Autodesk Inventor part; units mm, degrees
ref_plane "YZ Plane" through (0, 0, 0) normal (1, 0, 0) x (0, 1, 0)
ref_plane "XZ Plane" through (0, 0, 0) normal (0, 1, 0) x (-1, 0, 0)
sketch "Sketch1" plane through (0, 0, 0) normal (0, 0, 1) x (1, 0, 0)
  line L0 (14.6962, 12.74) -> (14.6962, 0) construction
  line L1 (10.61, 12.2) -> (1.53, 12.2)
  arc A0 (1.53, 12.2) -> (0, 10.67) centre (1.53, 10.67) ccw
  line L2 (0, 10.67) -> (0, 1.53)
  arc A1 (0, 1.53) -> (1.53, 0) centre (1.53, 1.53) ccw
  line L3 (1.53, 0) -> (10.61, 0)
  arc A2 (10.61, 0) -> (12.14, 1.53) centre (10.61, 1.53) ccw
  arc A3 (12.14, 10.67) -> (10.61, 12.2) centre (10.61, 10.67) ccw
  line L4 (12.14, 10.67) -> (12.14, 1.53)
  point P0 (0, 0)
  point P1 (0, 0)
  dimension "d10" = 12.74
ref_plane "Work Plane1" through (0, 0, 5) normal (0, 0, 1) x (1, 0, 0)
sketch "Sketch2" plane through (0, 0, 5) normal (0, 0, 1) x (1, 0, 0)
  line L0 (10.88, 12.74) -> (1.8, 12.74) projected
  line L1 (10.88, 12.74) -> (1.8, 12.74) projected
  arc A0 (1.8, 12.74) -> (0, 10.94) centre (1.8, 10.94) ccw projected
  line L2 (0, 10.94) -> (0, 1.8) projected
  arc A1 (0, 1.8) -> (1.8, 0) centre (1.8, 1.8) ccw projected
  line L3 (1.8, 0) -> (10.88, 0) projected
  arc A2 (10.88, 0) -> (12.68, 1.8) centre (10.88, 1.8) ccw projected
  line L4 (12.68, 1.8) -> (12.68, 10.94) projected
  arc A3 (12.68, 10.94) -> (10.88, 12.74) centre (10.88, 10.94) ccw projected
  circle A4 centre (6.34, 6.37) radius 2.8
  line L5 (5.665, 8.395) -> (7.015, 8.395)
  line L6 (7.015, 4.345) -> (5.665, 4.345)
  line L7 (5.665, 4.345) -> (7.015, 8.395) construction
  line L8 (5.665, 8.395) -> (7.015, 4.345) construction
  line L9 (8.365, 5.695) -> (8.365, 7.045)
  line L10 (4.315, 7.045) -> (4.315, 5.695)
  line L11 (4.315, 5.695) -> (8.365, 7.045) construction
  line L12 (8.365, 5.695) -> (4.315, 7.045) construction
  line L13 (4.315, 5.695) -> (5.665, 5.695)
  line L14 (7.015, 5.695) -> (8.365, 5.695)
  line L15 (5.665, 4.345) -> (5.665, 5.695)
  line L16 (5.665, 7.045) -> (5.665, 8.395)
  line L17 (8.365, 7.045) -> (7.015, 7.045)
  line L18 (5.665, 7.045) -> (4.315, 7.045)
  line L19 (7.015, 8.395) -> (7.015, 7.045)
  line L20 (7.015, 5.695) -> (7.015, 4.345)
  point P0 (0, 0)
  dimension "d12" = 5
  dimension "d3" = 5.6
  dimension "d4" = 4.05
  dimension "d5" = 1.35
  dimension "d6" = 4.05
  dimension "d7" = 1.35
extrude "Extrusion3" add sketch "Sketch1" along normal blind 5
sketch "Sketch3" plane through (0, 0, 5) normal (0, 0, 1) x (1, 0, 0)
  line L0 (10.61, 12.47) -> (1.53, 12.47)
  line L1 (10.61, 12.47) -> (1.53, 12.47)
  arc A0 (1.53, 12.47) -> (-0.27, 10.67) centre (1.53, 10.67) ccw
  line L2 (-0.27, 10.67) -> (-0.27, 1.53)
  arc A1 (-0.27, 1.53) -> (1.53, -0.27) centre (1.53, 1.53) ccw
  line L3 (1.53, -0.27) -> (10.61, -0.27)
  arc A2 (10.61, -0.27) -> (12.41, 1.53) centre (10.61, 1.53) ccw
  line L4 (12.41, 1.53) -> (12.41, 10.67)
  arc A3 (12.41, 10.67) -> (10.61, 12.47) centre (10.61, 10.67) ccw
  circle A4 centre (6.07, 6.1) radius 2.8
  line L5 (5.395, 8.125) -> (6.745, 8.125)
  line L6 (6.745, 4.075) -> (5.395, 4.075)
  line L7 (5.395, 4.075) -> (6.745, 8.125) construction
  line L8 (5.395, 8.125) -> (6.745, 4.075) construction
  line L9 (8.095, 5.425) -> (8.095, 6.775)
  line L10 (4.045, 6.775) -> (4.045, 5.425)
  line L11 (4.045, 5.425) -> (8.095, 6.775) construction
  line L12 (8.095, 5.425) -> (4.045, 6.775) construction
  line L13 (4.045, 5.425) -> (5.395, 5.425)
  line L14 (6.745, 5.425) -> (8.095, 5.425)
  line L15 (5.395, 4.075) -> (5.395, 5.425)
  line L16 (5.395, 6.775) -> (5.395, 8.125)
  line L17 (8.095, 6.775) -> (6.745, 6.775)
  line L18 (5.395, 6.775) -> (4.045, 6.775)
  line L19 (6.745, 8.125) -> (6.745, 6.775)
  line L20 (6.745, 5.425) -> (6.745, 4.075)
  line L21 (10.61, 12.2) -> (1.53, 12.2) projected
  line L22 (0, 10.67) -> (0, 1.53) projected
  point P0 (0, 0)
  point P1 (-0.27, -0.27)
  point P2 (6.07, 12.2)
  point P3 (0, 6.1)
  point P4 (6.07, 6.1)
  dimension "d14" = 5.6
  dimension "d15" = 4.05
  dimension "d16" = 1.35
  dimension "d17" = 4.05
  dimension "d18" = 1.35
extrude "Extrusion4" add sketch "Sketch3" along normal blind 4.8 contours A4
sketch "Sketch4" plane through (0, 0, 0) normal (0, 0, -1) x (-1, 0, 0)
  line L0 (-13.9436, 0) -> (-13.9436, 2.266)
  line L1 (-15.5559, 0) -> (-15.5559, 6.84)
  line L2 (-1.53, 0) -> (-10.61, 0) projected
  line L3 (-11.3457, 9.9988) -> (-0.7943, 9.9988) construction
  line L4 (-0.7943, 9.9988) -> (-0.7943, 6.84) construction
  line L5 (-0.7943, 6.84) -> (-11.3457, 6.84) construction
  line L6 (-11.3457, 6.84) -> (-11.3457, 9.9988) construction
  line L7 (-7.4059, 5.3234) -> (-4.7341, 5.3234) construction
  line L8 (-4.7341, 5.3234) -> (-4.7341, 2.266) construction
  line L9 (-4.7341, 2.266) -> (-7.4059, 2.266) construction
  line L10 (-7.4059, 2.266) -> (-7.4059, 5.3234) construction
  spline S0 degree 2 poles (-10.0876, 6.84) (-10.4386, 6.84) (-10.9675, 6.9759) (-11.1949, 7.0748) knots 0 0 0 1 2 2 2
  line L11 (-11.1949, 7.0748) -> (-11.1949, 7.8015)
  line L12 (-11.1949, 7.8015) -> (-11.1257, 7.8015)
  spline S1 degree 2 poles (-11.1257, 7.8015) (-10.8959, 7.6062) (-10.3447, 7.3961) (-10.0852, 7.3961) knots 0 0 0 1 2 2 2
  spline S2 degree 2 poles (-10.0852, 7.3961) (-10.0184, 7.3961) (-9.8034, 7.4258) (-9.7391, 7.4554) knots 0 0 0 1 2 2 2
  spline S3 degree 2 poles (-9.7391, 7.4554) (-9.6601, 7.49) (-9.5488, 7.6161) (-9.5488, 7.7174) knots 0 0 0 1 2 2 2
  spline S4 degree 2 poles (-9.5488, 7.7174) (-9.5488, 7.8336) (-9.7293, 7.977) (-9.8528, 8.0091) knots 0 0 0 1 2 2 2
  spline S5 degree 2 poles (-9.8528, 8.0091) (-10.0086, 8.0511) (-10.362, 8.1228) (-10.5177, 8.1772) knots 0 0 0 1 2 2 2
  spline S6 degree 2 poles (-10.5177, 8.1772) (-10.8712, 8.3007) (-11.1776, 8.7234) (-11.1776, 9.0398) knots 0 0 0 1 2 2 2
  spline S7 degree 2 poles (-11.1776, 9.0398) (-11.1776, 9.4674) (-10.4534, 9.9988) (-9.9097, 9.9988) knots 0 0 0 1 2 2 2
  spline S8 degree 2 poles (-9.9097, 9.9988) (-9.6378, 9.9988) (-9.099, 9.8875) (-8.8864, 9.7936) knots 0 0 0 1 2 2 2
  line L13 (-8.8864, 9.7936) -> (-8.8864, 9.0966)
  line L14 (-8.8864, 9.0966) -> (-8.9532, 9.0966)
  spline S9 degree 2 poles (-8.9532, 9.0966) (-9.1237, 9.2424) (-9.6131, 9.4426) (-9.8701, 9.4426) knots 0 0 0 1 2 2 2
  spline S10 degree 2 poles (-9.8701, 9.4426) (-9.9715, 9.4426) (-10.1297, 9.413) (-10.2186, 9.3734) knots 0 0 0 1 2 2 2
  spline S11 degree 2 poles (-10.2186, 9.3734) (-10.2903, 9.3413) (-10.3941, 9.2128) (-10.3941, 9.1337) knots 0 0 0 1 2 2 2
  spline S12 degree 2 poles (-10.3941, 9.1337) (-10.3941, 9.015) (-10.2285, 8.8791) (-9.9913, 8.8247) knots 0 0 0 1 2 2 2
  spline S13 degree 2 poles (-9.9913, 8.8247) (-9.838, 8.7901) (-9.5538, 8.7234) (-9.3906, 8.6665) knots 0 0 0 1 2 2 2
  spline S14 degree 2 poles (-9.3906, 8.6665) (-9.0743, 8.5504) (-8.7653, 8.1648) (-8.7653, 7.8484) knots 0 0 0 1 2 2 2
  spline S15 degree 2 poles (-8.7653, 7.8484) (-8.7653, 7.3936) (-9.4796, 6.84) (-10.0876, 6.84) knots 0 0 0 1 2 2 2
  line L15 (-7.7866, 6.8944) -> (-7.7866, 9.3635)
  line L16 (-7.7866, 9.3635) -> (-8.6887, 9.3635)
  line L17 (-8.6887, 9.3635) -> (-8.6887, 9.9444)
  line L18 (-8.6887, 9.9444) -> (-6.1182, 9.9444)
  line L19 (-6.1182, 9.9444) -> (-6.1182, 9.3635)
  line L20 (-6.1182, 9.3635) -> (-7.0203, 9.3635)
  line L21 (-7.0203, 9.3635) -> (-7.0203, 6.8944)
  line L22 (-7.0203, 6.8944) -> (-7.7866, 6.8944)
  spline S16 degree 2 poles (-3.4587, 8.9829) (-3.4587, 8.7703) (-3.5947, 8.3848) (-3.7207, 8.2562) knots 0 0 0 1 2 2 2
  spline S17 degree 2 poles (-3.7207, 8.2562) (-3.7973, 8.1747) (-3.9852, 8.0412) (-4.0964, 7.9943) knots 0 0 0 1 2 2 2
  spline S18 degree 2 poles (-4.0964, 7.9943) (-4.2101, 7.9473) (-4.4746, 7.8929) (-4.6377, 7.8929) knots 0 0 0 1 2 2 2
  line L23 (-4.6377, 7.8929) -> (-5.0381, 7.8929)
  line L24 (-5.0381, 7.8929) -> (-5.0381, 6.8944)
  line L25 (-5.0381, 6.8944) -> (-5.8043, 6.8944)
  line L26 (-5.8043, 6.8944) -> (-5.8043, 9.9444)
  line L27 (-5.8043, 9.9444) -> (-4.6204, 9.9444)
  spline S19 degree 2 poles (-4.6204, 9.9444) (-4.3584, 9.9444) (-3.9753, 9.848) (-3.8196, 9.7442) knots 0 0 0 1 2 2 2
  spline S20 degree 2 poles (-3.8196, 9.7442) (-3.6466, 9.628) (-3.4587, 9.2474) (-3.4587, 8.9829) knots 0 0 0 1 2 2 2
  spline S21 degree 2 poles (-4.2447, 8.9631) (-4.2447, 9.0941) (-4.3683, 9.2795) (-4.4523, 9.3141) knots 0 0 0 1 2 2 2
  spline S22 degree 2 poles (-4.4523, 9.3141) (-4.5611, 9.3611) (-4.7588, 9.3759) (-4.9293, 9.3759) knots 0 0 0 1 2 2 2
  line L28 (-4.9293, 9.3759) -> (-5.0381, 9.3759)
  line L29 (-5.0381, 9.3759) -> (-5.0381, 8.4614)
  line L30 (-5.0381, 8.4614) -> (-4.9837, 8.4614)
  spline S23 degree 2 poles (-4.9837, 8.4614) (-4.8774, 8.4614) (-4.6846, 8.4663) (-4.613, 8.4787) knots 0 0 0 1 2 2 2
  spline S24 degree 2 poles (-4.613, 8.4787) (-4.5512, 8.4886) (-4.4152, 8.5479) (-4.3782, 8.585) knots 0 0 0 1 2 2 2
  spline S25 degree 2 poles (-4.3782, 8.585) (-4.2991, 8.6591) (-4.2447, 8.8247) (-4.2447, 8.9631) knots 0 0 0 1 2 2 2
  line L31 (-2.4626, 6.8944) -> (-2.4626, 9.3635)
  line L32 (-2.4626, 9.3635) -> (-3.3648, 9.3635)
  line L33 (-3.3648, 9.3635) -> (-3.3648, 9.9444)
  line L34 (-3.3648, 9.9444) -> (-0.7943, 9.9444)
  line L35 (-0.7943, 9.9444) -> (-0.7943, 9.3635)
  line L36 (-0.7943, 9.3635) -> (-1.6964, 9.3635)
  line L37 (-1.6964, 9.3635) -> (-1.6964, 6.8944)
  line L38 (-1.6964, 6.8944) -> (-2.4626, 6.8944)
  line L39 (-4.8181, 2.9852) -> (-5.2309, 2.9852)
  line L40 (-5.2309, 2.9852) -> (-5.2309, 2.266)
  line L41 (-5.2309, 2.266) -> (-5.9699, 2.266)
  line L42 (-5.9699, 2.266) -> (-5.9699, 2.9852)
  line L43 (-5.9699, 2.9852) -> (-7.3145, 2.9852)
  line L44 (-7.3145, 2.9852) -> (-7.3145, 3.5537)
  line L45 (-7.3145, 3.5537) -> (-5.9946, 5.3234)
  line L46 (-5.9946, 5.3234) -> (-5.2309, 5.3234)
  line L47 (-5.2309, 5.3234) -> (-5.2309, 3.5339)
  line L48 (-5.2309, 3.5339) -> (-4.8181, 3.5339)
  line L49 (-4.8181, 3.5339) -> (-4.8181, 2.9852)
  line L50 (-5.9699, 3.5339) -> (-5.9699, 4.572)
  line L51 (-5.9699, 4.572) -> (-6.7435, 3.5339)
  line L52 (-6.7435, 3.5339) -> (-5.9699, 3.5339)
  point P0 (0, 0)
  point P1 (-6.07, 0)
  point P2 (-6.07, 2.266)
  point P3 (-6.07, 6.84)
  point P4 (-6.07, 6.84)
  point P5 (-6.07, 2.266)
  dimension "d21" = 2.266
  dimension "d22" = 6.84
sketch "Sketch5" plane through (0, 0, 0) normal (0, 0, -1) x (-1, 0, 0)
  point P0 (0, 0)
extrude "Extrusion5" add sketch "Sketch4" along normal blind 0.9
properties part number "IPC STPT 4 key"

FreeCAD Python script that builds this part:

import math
import FreeCAD as App
import Part
import Sketcher
from FreeCAD import Vector


def add_polygon(sketch, points):
    """Adds a closed chain of lines whose ends are joined by coincident constraints."""
    first, n = sketch.GeometryCount, len(points)
    for a, b in zip(points, points[1:] + points[:1]):
        sketch.addGeometry(Part.LineSegment(App.Vector(*a, 0), App.Vector(*b, 0)), False)
    for i in range(n):
        sketch.addConstraint(Sketcher.Constraint("Coincident", first + i, 2, first + (i + 1) % n, 1))

doc = App.newDocument("Part")
params = doc.addObject("Spreadsheet::Sheet", "Params")
for row, (alias, value) in enumerate([
    ("sketch1_radius", "1.53 mm"),
    ("sketch1_width", "9.08 mm"),
    ("sketch1_height", "9.14 mm"),
    ("pad1_length", "5 mm"),
    ("sketch2_diameter", "5.6 mm"),
    ("sketch2_width", "1.35 mm"),
    ("pad2_length", "4.8 mm"),
    ("sketch3_height", "3.05 mm"),
    ("pad3_length", "0.9 mm"),
], start=1):
    params.set(f"A{row}", alias)
    params.set(f"B{row}", "=" + value)
    params.setAlias(f"B{row}", alias)

body = doc.addObject("PartDesign::Body", "Body")

# Sketch on XY plane
sketch1 = body.newObject("Sketcher::SketchObject", "Sketch")
sketch1.AttachmentSupport = (doc.getObject("XY_Plane"), [""])
sketch1.MapMode = "FlatFace"
sketch1.addGeometry([
    Part.ArcOfCircle(Part.Circle(Vector(10.6, 10.7, 0), Vector(0, 0, 1), 1.5), math.radians(0), math.radians(90)),  # 0
    Part.LineSegment(Vector(10.6, 12.2, 0), Vector(1.5, 12.2, 0)),  # 1
    Part.ArcOfCircle(Part.Circle(Vector(1.5, 10.7, 0), Vector(0, 0, 1), 1.5), math.radians(90), math.radians(180)),  # 2
    Part.LineSegment(Vector(0, 10.7, 0), Vector(0, 1.5, 0)),  # 3
    Part.ArcOfCircle(Part.Circle(Vector(1.5, 1.5, 0), Vector(0, 0, 1), 1.5), math.radians(180), math.radians(270)),  # 4
    Part.LineSegment(Vector(1.5, 0, 0), Vector(10.6, 0, 0)),  # 5
    Part.ArcOfCircle(Part.Circle(Vector(10.6, 1.5, 0), Vector(0, 0, 1), 1.5), math.radians(-90), math.radians(0)),  # 6
    Part.LineSegment(Vector(12.1, 1.5, 0), Vector(12.1, 10.7, 0)),  # 7
], False)
sketch1.addConstraint([
    Sketcher.Constraint("Tangent", 0, 2, 1, 1),
    Sketcher.Constraint("Tangent", 1, 2, 2, 1),
    Sketcher.Constraint("Tangent", 2, 2, 3, 1),
    Sketcher.Constraint("Tangent", 3, 2, 4, 1),
    Sketcher.Constraint("Tangent", 4, 2, 5, 1),
    Sketcher.Constraint("Tangent", 5, 2, 6, 1),
    Sketcher.Constraint("Tangent", 6, 2, 7, 1),
    Sketcher.Constraint("Tangent", 7, 2, 0, 1),
    Sketcher.Constraint("Horizontal", 1),
    Sketcher.Constraint("Vertical", 3),
    Sketcher.Constraint("Horizontal", 5),
    Sketcher.Constraint("Vertical", 7),
    Sketcher.Constraint("Equal", 0, 2),
    Sketcher.Constraint("Equal", 2, 4),
    Sketcher.Constraint("Equal", 4, 6),
    Sketcher.Constraint("PointOnObject", 2, 2, -2),
    Sketcher.Constraint("PointOnObject", 4, 2, -1),
    Sketcher.Constraint("Radius", 0, 1.53),
    Sketcher.Constraint("DistanceX", 1, 2, 1, 1, 9.08),
    Sketcher.Constraint("DistanceY", 3, 2, 3, 1, 9.14),
])
sketch1.setExpression("Constraints[17]", "Params.sketch1_radius")
sketch1.setExpression("Constraints[18]", "Params.sketch1_width")
sketch1.setExpression("Constraints[19]", "Params.sketch1_height")
pad1 = body.newObject("PartDesign::Pad", "Pad")
pad1.Profile = sketch1
pad1.setExpression("Length", "Params.pad1_length")

# Sketch on XY plane
sketch2 = body.newObject("Sketcher::SketchObject", "Sketch001")
sketch2.AttachmentSupport = (doc.getObject("XY_Plane"), [""])
sketch2.MapMode = "FlatFace"
sketch2.AttachmentOffset = App.Placement(Vector(0, 0, 5), App.Rotation())
sketch2.addGeometry(Part.Circle(Vector(6.1, 6.1, 0), Vector(0, 0, 1), 2.8), False)  # 0
add_polygon(sketch2, [(5.4, 6.8), (5.4, 8.1), (6.7, 8.1), (6.7, 6.8), (8.1, 6.8), (8.1, 5.4), (6.7, 5.4), (6.7, 4.1), (5.4, 4.1), (5.4, 5.4), (4, 5.4), (4, 6.8)])  # lines 1-12
sketch2.addConstraint([
    Sketcher.Constraint("Vertical", 1),
    Sketcher.Constraint("Horizontal", 2),
    Sketcher.Constraint("Vertical", 3),
    Sketcher.Constraint("Horizontal", 4),
    Sketcher.Constraint("Vertical", 5),
    Sketcher.Constraint("Horizontal", 6),
    Sketcher.Constraint("Vertical", 7),
    Sketcher.Constraint("Horizontal", 8),
    Sketcher.Constraint("Vertical", 9),
    Sketcher.Constraint("Horizontal", 10),
    Sketcher.Constraint("Vertical", 11),
    Sketcher.Constraint("Horizontal", 12),
    Sketcher.Constraint("Horizontal", 6, 2, 9, 2),
    Sketcher.Constraint("Horizontal", 4, 2, 11, 2),
    Sketcher.Constraint("Vertical", 3, 2, 6, 2),
    Sketcher.Constraint("Vertical", 1, 2, 8, 2),
    Sketcher.Constraint("Equal", 2, 4),
    Sketcher.Constraint("Equal", 8, 10),
    Sketcher.Constraint("Equal", 12, 1),
    Sketcher.Constraint("Equal", 3, 5),
    Sketcher.Constraint("Equal", 5, 7),
    Sketcher.Constraint("Diameter", 0, 5.6),
    Sketcher.Constraint("DistanceX", 2, 1, 2, 2, 1.35),
    Sketcher.Constraint("DistanceY", -1, 1, 0, 3, 6.1),
    Sketcher.Constraint("DistanceX", -1, 1, 0, 3, 6.07),
    Sketcher.Constraint("DistanceX", -1, 1, 1, 2, 5.395),
    Sketcher.Constraint("DistanceY", -1, 1, 1, 2, 8.125),
])
sketch2.setExpression("Constraints[33]", "Params.sketch2_diameter")
sketch2.setExpression("Constraints[34]", "Params.sketch2_width")
pad2 = body.newObject("PartDesign::Pad", "Pad001")
pad2.Profile = sketch2
pad2.setExpression("Length", "Params.pad2_length")

# Sketch on XY plane
sketch3 = body.newObject("Sketcher::SketchObject", "Sketch002")
sketch3.AttachmentSupport = (doc.getObject("XY_Plane"), [""])
sketch3.MapMode = "FlatFace"
sketch3.addGeometry(Part.BSplineCurve([Vector(10.0876, 6.84, 0), Vector(10.4386, 6.84, 0), Vector(10.9675, 6.9759, 0), Vector(11.1949, 7.0748, 0)], [3, 1, 3], [0, 1, 2], False, 2, [1, 1, 1, 1], False), False)  # 0
sketch3.addGeometry(Part.BSplineCurve([Vector(8.7653, 7.8484, 0), Vector(8.7653, 7.3936, 0), Vector(9.4796, 6.84, 0), Vector(10.0876, 6.84, 0)], [3, 1, 3], [0, 1, 2], False, 2, [1, 1, 1, 1], False), False)  # 1
sketch3.addGeometry(Part.BSplineCurve([Vector(9.3906, 8.6665, 0), Vector(9.0743, 8.5504, 0), Vector(8.7653, 8.1648, 0), Vector(8.7653, 7.8484, 0)], [3, 1, 3], [0, 1, 2], False, 2, [1, 1, 1, 1], False), False)  # 2
sketch3.addGeometry(Part.BSplineCurve([Vector(9.9913, 8.8247, 0), Vector(9.838, 8.7901, 0), Vector(9.5538, 8.7234, 0), Vector(9.3906, 8.6665, 0)], [3, 1, 3], [0, 1, 2], False, 2, [1, 1, 1, 1], False), False)  # 3
sketch3.addGeometry(Part.BSplineCurve([Vector(10.3941, 9.1337, 0), Vector(10.3941, 9.015, 0), Vector(10.2285, 8.8791, 0), Vector(9.9913, 8.8247, 0)], [3, 1, 3], [0, 1, 2], False, 2, [1, 1, 1, 1], False), False)  # 4
sketch3.addGeometry(Part.BSplineCurve([Vector(10.2186, 9.3734, 0), Vector(10.2903, 9.3413, 0), Vector(10.3941, 9.2128, 0), Vector(10.3941, 9.1337, 0)], [3, 1, 3], [0, 1, 2], False, 2, [1, 1, 1, 1], False), False)  # 5
sketch3.addGeometry(Part.BSplineCurve([Vector(9.8701, 9.4426, 0), Vector(9.9715, 9.4426, 0), Vector(10.1297, 9.413, 0), Vector(10.2186, 9.3734, 0)], [3, 1, 3], [0, 1, 2], False, 2, [1, 1, 1, 1], False), False)  # 6
sketch3.addGeometry(Part.BSplineCurve([Vector(8.9532, 9.0966, 0), Vector(9.1237, 9.2424, 0), Vector(9.6131, 9.4426, 0), Vector(9.8701, 9.4426, 0)], [3, 1, 3], [0, 1, 2], False, 2, [1, 1, 1, 1], False), False)  # 7
sketch3.addGeometry(Part.LineSegment(Vector(8.9532, 9.0966, 0), Vector(8.8864, 9.0966, 0)), False)  # 8
sketch3.addGeometry(Part.LineSegment(Vector(8.8864, 9.0966, 0), Vector(8.8864, 9.7936, 0)), False)  # 9
sketch3.addGeometry(Part.BSplineCurve([Vector(9.9097, 9.9988, 0), Vector(9.6378, 9.9988, 0), Vector(9.099, 9.8875, 0), Vector(8.8864, 9.7936, 0)], [3, 1, 3], [0, 1, 2], False, 2, [1, 1, 1, 1], False), False)  # 10
sketch3.addGeometry(Part.BSplineCurve([Vector(11.1776, 9.0398, 0), Vector(11.1776, 9.4674, 0), Vector(10.4534, 9.9988, 0), Vector(9.9097, 9.9988, 0)], [3, 1, 3], [0, 1, 2], False, 2, [1, 1, 1, 1], False), False)  # 11
sketch3.addGeometry(Part.BSplineCurve([Vector(10.5177, 8.1772, 0), Vector(10.8712, 8.3007, 0), Vector(11.1776, 8.7234, 0), Vector(11.1776, 9.0398, 0)], [3, 1, 3], [0, 1, 2], False, 2, [1, 1, 1, 1], False), False)  # 12
sketch3.addGeometry(Part.BSplineCurve([Vector(9.8528, 8.0091, 0), Vector(10.0086, 8.0511, 0), Vector(10.362, 8.1228, 0), Vector(10.5177, 8.1772, 0)], [3, 1, 3], [0, 1, 2], False, 2, [1, 1, 1, 1], False), False)  # 13
sketch3.addGeometry(Part.BSplineCurve([Vector(9.5488, 7.7174, 0), Vector(9.5488, 7.8336, 0), Vector(9.7293, 7.977, 0), Vector(9.8528, 8.0091, 0)], [3, 1, 3], [0, 1, 2], False, 2, [1, 1, 1, 1], False), False)  # 14
sketch3.addGeometry(Part.BSplineCurve([Vector(9.7391, 7.4554, 0), Vector(9.6601, 7.49, 0), Vector(9.5488, 7.6161, 0), Vector(9.5488, 7.7174, 0)], [3, 1, 3], [0, 1, 2], False, 2, [1, 1, 1, 1], False), False)  # 15
sketch3.addGeometry(Part.BSplineCurve([Vector(10.0852, 7.3961, 0), Vector(10.0184, 7.3961, 0), Vector(9.8034, 7.4258, 0), Vector(9.7391, 7.4554, 0)], [3, 1, 3], [0, 1, 2], False, 2, [1, 1, 1, 1], False), False)  # 16
sketch3.addGeometry(Part.BSplineCurve([Vector(11.1257, 7.8015, 0), Vector(10.8959, 7.6062, 0), Vector(10.3447, 7.3961, 0), Vector(10.0852, 7.3961, 0)], [3, 1, 3], [0, 1, 2], False, 2, [1, 1, 1, 1], False), False)  # 17
sketch3.addGeometry(Part.LineSegment(Vector(11.1257, 7.8015, 0), Vector(11.1949, 7.8015, 0)), False)  # 18
sketch3.addGeometry(Part.LineSegment(Vector(11.1949, 7.8015, 0), Vector(11.1949, 7.0748, 0)), False)  # 19
add_polygon(sketch3, [(7.7866, 9.3635), (7.7866, 6.8944), (7.0203, 6.8944), (7.0203, 9.3635), (6.1182, 9.3635), (6.1182, 9.9444), (8.6887, 9.9444), (8.6887, 9.3635)])  # lines 20-27
sketch3.addGeometry(Part.BSplineCurve([Vector(3.4587, 8.9829, 0), Vector(3.4587, 8.7703, 0), Vector(3.5947, 8.3848, 0), Vector(3.7207, 8.2562, 0)], [3, 1, 3], [0, 1, 2], False, 2, [1, 1, 1, 1], False), False)  # 28
sketch3.addGeometry(Part.BSplineCurve([Vector(3.8196, 9.7442, 0), Vector(3.6466, 9.628, 0), Vector(3.4587, 9.2474, 0), Vector(3.4587, 8.9829, 0)], [3, 1, 3], [0, 1, 2], False, 2, [1, 1, 1, 1], False), False)  # 29
sketch3.addGeometry(Part.BSplineCurve([Vector(4.6204, 9.9444, 0), Vector(4.3584, 9.9444, 0), Vector(3.9753, 9.848, 0), Vector(3.8196, 9.7442, 0)], [3, 1, 3], [0, 1, 2], False, 2, [1, 1, 1, 1], False), False)  # 30
sketch3.addGeometry(Part.LineSegment(Vector(4.6204, 9.9444, 0), Vector(5.8043, 9.9444, 0)), False)  # 31
sketch3.addGeometry(Part.LineSegment(Vector(5.8043, 9.9444, 0), Vector(5.8043, 6.8944, 0)), False)  # 32
sketch3.addGeometry(Part.LineSegment(Vector(5.8043, 6.8944, 0), Vector(5.0381, 6.8944, 0)), False)  # 33
sketch3.addGeometry(Part.LineSegment(Vector(5.0381, 6.8944, 0), Vector(5.0381, 7.8929, 0)), False)  # 34
sketch3.addGeometry(Part.LineSegment(Vector(5.0381, 7.8929, 0), Vector(4.6377, 7.8929, 0)), False)  # 35
sketch3.addGeometry(Part.BSplineCurve([Vector(4.0964, 7.9943, 0), Vector(4.2101, 7.9473, 0), Vector(4.4746, 7.8929, 0), Vector(4.6377, 7.8929, 0)], [3, 1, 3], [0, 1, 2], False, 2, [1, 1, 1, 1], False), False)  # 36
sketch3.addGeometry(Part.BSplineCurve([Vector(3.7207, 8.2562, 0), Vector(3.7973, 8.1747, 0), Vector(3.9852, 8.0412, 0), Vector(4.0964, 7.9943, 0)], [3, 1, 3], [0, 1, 2], False, 2, [1, 1, 1, 1], False), False)  # 37
sketch3.addGeometry(Part.BSplineCurve([Vector(4.2447, 8.9631, 0), Vector(4.2447, 9.0941, 0), Vector(4.3683, 9.2795, 0), Vector(4.4523, 9.3141, 0)], [3, 1, 3], [0, 1, 2], False, 2, [1, 1, 1, 1], False), False)  # 38
sketch3.addGeometry(Part.BSplineCurve([Vector(4.3782, 8.585, 0), Vector(4.2991, 8.6591, 0), Vector(4.2447, 8.8247, 0), Vector(4.2447, 8.9631, 0)], [3, 1, 3], [0, 1, 2], False, 2, [1, 1, 1, 1], False), False)  # 39
sketch3.addGeometry(Part.BSplineCurve([Vector(4.613, 8.4787, 0), Vector(4.5512, 8.4886, 0), Vector(4.4152, 8.5479, 0), Vector(4.3782, 8.585, 0)], [3, 1, 3], [0, 1, 2], False, 2, [1, 1, 1, 1], False), False)  # 40
sketch3.addGeometry(Part.BSplineCurve([Vector(4.9837, 8.4614, 0), Vector(4.8774, 8.4614, 0), Vector(4.6846, 8.4663, 0), Vector(4.613, 8.4787, 0)], [3, 1, 3], [0, 1, 2], False, 2, [1, 1, 1, 1], False), False)  # 41
sketch3.addGeometry(Part.LineSegment(Vector(4.9837, 8.4614, 0), Vector(5.0381, 8.4614, 0)), False)  # 42
sketch3.addGeometry(Part.LineSegment(Vector(5.0381, 8.4614, 0), Vector(5.0381, 9.3759, 0)), False)  # 43
sketch3.addGeometry(Part.LineSegment(Vector(5.0381, 9.3759, 0), Vector(4.9293, 9.3759, 0)), False)  # 44
sketch3.addGeometry(Part.BSplineCurve([Vector(4.4523, 9.3141, 0), Vector(4.5611, 9.3611, 0), Vector(4.7588, 9.3759, 0), Vector(4.9293, 9.3759, 0)], [3, 1, 3], [0, 1, 2], False, 2, [1, 1, 1, 1], False), False)  # 45
add_polygon(sketch3, [(2.4626, 9.3635), (2.4626, 6.8944), (1.6964, 6.8944), (1.6964, 9.3635), (0.7943, 9.3635), (0.7943, 9.9444), (3.3648, 9.9444), (3.3648, 9.3635)])  # lines 46-53
add_polygon(sketch3, [(5.2309, 2.9852), (4.8181, 2.9852), (4.8181, 3.5339), (5.2309, 3.5339), (5.2309, 5.3234), (5.9946, 5.3234), (7.3145, 3.5537), (7.3145, 2.9852), (5.9699, 2.9852), (5.9699, 2.266), (5.2309, 2.266)])  # lines 54-64
add_polygon(sketch3, [(5.9699, 4.572), (5.9699, 3.5339), (6.7435, 3.5339)])  # lines 65-67
sketch3.addConstraint([
    Sketcher.Constraint("Block", 0),
    Sketcher.Constraint("Block", 1),
    Sketcher.Constraint("Block", 2),
    Sketcher.Constraint("Block", 3),
    Sketcher.Constraint("Block", 4),
    Sketcher.Constraint("Block", 5),
    Sketcher.Constraint("Block", 6),
    Sketcher.Constraint("Block", 7),
    Sketcher.Constraint("Block", 10),
    Sketcher.Constraint("Block", 11),
    Sketcher.Constraint("Block", 12),
    Sketcher.Constraint("Block", 13),
    Sketcher.Constraint("Block", 14),
    Sketcher.Constraint("Block", 15),
    Sketcher.Constraint("Block", 16),
    Sketcher.Constraint("Block", 17),
    Sketcher.Constraint("Block", 28),
    Sketcher.Constraint("Block", 29),
    Sketcher.Constraint("Block", 30),
    Sketcher.Constraint("Block", 36),
    Sketcher.Constraint("Block", 37),
    Sketcher.Constraint("Block", 38),
    Sketcher.Constraint("Block", 39),
    Sketcher.Constraint("Block", 40),
    Sketcher.Constraint("Block", 41),
    Sketcher.Constraint("Block", 45),
    Sketcher.Constraint("Coincident", 7, 1, 8, 1),
    Sketcher.Constraint("Coincident", 8, 2, 9, 1),
    Sketcher.Constraint("Coincident", 9, 2, 10, 2),
    Sketcher.Constraint("Coincident", 17, 1, 18, 1),
    Sketcher.Constraint("Coincident", 18, 2, 19, 1),
    Sketcher.Constraint("Coincident", 19, 2, 0, 2),
    Sketcher.Constraint("Coincident", 30, 1, 31, 1),
    Sketcher.Constraint("Coincident", 31, 2, 32, 1),
    Sketcher.Constraint("Coincident", 32, 2, 33, 1),
    Sketcher.Constraint("Coincident", 33, 2, 34, 1),
    Sketcher.Constraint("Coincident", 34, 2, 35, 1),
    Sketcher.Constraint("Coincident", 35, 2, 36, 2),
    Sketcher.Constraint("Coincident", 41, 1, 42, 1),
    Sketcher.Constraint("Coincident", 42, 2, 43, 1),
    Sketcher.Constraint("Coincident", 43, 2, 44, 1),
    Sketcher.Constraint("Coincident", 44, 2, 45, 2),
    Sketcher.Constraint("Horizontal", 8),
    Sketcher.Constraint("Vertical", 9),
    Sketcher.Constraint("Horizontal", 18),
    Sketcher.Constraint("Vertical", 19),
    Sketcher.Constraint("Vertical", 20),
    Sketcher.Constraint("Horizontal", 21),
    Sketcher.Constraint("Vertical", 22),
    Sketcher.Constraint("Horizontal", 23),
    Sketcher.Constraint("Vertical", 24),
    Sketcher.Constraint("Horizontal", 25),
    Sketcher.Constraint("Vertical", 26),
    Sketcher.Constraint("Horizontal", 27),
    Sketcher.Constraint("Horizontal", 31),
    Sketcher.Constraint("Vertical", 32),
    Sketcher.Constraint("Horizontal", 33),
    Sketcher.Constraint("Vertical", 34),
    Sketcher.Constraint("Horizontal", 35),
    Sketcher.Constraint("Horizontal", 42),
    Sketcher.Constraint("Vertical", 43),
    Sketcher.Constraint("Horizontal", 44),
    Sketcher.Constraint("Vertical", 46),
    Sketcher.Constraint("Horizontal", 47),
    Sketcher.Constraint("Vertical", 48),
    Sketcher.Constraint("Horizontal", 49),
    Sketcher.Constraint("Vertical", 50),
    Sketcher.Constraint("Horizontal", 51),
    Sketcher.Constraint("Vertical", 52),
    Sketcher.Constraint("Horizontal", 53),
    Sketcher.Constraint("Horizontal", 54),
    Sketcher.Constraint("Vertical", 55),
    Sketcher.Constraint("Horizontal", 56),
    Sketcher.Constraint("Vertical", 57),
    Sketcher.Constraint("Horizontal", 58),
    Sketcher.Constraint("Vertical", 60),
    Sketcher.Constraint("Horizontal", 61),
    Sketcher.Constraint("Vertical", 62),
    Sketcher.Constraint("Horizontal", 63),
    Sketcher.Constraint("Vertical", 64),
    Sketcher.Constraint("Vertical", 65),
    Sketcher.Constraint("Horizontal", 66),
    Sketcher.Constraint("Parallel", 59, 67),
    Sketcher.Constraint("Horizontal", 23, 2, 26, 2),
    Sketcher.Constraint("Horizontal", 25, 2, 31, 2),
    Sketcher.Constraint("Horizontal", 21, 2, 32, 2),
    Sketcher.Constraint("Horizontal", 33, 2, 46, 2),
    Sketcher.Constraint("Horizontal", 27, 2, 48, 2),
    Sketcher.Constraint("Horizontal", 31, 2, 50, 2),
    Sketcher.Constraint("Horizontal", 49, 2, 52, 2),
    Sketcher.Constraint("Horizontal", 54, 2, 60, 2),
    Sketcher.Constraint("Horizontal", 56, 2, 65, 2),
    Sketcher.Constraint("Vertical", 34, 2, 42, 2),
    Sketcher.Constraint("Vertical", 57, 2, 63, 2),
    Sketcher.Constraint("Vertical", 62, 2, 65, 2),
    Sketcher.Constraint("Equal", 23, 27),
    Sketcher.Constraint("Equal", 21, 33),
    Sketcher.Constraint("Equal", 33, 47),
    Sketcher.Constraint("Equal", 27, 49),
    Sketcher.Constraint("Equal", 25, 51),
    Sketcher.Constraint("DistanceY", -1, 1, 62, 2, 2.266),
    Sketcher.Constraint("DistanceY", 32, 2, 32, 1, 3.05),
    Sketcher.Constraint("DistanceX", 23, 2, 23, 1, 0.902),
    Sketcher.Constraint("DistanceX", 31, 1, 31, 2, 1.184),
    Sketcher.Constraint("DistanceX", 63, 2, 63, 1, 0.739),
    Sketcher.Constraint("DistanceY", 20, 2, 20, 1, 2.469),
    Sketcher.Constraint("DistanceY", 65, 2, 65, 1, 1.038),
    Sketcher.Constraint("DistanceX", -1, 1, 61, 2, 5.97),
    Sketcher.Constraint("DistanceX", 33, 2, 23, 2, 1.08),
    Sketcher.Constraint("DistanceX", 54, 2, 33, 2, 0.22),
    Sketcher.Constraint("DistanceX", 58, 2, 59, 2, 1.32),
    Sketcher.Constraint("DistanceX", 21, 2, 21, 1, 0.7663),
    Sketcher.Constraint("DistanceX", 58, 1, 58, 2, 0.7637),
    Sketcher.Constraint("DistanceX", 66, 1, 66, 2, 0.7736),
    Sketcher.Constraint("DistanceY", 55, 1, 55, 2, 0.5487),
    Sketcher.Constraint("DistanceY", 57, 1, 57, 2, 1.7895),
    Sketcher.Constraint("DistanceY", 62, 2, 62, 1, 0.7192),
    Sketcher.Constraint("DistanceX", 46, 2, 35, 2, 2.175),
])
sketch3.setExpression("Constraints[131]", "Params.sketch3_height")
pad3 = body.newObject("PartDesign::Pad", "Pad002")
pad3.Profile = sketch3
pad3.setExpression("Length", "Params.pad3_length")
pad3.Reversed = True

doc.recompute()
